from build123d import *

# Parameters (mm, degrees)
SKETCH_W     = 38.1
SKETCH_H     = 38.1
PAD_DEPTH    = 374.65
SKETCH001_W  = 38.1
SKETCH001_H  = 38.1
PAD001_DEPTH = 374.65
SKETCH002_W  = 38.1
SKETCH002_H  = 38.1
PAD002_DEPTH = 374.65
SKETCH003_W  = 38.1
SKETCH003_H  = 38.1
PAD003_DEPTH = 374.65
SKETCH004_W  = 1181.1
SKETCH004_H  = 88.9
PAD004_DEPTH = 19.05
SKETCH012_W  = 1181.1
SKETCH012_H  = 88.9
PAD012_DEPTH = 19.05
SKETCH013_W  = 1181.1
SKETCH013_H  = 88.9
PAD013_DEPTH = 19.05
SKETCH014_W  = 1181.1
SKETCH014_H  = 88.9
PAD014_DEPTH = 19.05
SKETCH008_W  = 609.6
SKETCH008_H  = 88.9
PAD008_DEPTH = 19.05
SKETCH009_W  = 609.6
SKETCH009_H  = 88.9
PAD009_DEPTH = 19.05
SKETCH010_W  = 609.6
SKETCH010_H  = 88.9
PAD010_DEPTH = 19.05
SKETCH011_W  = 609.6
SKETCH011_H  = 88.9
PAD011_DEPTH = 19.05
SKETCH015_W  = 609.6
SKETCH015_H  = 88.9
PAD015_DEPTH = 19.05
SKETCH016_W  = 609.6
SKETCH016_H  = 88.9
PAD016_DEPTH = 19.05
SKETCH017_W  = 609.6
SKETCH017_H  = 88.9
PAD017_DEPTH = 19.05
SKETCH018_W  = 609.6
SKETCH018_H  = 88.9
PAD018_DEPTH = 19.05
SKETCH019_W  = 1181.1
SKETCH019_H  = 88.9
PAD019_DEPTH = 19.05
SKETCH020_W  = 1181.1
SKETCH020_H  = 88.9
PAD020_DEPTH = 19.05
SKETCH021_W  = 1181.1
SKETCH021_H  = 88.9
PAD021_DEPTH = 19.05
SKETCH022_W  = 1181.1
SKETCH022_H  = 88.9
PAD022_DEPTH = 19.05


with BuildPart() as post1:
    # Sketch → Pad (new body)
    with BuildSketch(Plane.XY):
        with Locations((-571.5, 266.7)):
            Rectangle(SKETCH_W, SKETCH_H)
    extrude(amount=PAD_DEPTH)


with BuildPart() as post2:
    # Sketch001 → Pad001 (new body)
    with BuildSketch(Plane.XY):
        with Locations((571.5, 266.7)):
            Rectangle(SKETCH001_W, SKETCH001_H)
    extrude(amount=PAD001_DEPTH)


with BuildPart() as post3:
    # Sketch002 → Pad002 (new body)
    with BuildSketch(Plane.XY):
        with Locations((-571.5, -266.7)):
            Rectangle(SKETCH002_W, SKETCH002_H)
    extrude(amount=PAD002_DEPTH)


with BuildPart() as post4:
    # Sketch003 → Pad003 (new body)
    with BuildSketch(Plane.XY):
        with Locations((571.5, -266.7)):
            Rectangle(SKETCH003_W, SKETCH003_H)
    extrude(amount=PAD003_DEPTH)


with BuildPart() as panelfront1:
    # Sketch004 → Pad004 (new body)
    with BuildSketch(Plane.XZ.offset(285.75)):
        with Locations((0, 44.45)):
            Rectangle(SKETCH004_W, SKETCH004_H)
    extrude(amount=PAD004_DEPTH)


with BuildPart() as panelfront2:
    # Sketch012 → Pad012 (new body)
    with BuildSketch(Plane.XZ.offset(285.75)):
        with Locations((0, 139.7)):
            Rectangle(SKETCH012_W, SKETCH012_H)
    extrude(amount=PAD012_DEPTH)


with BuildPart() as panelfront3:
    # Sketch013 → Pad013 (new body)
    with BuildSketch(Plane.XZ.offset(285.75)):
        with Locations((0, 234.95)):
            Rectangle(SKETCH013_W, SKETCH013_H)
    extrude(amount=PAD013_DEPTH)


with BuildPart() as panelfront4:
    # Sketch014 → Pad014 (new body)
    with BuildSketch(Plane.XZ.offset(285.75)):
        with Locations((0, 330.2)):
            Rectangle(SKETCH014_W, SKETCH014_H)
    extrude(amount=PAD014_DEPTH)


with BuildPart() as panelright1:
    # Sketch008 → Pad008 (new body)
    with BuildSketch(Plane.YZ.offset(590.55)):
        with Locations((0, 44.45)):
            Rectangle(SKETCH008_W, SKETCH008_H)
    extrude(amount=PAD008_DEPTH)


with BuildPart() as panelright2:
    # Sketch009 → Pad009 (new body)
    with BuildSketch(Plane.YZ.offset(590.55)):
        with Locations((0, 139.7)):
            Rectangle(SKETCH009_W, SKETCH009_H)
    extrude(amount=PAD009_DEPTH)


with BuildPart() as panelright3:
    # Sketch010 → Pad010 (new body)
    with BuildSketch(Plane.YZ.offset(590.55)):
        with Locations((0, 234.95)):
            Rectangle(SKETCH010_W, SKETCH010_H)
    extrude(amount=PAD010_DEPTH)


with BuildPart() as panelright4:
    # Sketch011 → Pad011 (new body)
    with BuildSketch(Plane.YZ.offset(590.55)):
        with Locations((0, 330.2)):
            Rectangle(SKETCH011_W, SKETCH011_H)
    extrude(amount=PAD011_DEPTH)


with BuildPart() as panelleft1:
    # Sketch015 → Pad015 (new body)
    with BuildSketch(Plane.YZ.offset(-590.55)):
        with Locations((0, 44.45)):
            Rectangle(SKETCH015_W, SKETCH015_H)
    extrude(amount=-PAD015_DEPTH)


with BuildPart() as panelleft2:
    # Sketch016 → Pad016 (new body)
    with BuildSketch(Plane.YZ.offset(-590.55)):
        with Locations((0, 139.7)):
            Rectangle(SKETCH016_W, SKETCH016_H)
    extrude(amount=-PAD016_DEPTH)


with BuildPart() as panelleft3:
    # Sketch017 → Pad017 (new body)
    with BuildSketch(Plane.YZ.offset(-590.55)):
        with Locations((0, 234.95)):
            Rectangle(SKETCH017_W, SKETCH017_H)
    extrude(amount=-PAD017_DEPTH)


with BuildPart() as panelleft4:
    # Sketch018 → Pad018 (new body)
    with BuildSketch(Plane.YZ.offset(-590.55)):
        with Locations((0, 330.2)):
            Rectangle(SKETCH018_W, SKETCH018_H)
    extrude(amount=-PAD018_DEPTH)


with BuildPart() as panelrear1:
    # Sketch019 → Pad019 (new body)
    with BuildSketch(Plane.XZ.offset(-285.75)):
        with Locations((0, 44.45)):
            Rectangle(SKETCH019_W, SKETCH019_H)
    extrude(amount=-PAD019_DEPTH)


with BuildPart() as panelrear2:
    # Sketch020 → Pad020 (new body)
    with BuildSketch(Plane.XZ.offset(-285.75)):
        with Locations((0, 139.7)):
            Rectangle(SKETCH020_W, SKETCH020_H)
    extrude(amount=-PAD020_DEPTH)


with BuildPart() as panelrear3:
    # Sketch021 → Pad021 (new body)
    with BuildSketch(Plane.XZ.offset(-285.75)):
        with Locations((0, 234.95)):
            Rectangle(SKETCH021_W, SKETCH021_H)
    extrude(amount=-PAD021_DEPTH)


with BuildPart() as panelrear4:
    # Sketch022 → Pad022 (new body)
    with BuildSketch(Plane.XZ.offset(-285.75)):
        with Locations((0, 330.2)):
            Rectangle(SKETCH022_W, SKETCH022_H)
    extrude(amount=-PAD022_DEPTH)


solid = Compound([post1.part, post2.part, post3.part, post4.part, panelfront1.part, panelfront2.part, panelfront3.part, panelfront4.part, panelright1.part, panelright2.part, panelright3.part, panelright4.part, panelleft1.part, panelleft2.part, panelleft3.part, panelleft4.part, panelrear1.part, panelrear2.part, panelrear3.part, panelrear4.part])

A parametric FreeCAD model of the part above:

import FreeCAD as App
import Part
import Sketcher
Q = App.Units.Quantity

doc = App.newDocument("Part")
body = doc.addObject("PartDesign::Body", "Body")

sketch1 = body.newObject("Sketcher::SketchObject", "Sketch")
sketch1.AttachmentSupport = (doc.getObject("XY_Plane"), [""])
sketch1.MapMode = "FlatFace"
sketch1.addGeometry([
    Part.LineSegment(App.Vector(-591, 286, 0), App.Vector(-591, 248, 0)),
    Part.LineSegment(App.Vector(-591, 248, 0), App.Vector(-552, 248, 0)),
    Part.LineSegment(App.Vector(-552, 248, 0), App.Vector(-552, 286, 0)),
    Part.LineSegment(App.Vector(-552, 286, 0), App.Vector(-591, 286, 0)),
], False)
sketch1.addConstraint([
    Sketcher.Constraint("Coincident", 0, 2, 1, 1),
    Sketcher.Constraint("Coincident", 1, 2, 2, 1),
    Sketcher.Constraint("Coincident", 2, 2, 3, 1),
    Sketcher.Constraint("Coincident", 3, 2, 0, 1),
    Sketcher.Constraint("Vertical", 0),
    Sketcher.Constraint("Horizontal", 1),
    Sketcher.Constraint("Vertical", 2),
    Sketcher.Constraint("Horizontal", 3),
    Sketcher.Constraint("Equal", 3, 0),
    Sketcher.Constraint("DistanceX", 1, 1, 1, 2, Q("1.5 in")),
    Sketcher.Constraint("DistanceX", 0, 2, -1, 1, Q("23.25 in")),
    Sketcher.Constraint("DistanceY", -1, 1, 0, 2, Q("9.75 in")),
])
pad1 = body.newObject("PartDesign::Pad", "Pad")
pad1.Profile = sketch1
pad1.Length = Q("14.75 in")
body2 = doc.addObject("PartDesign::Body", "Body001")

sketch2 = body2.newObject("Sketcher::SketchObject", "Sketch001")
sketch2.AttachmentSupport = (doc.getObject("XY_Plane001"), [""])
sketch2.MapMode = "FlatFace"
sketch2.addGeometry([
    Part.LineSegment(App.Vector(552, 286, 0), App.Vector(552, 248, 0)),
    Part.LineSegment(App.Vector(552, 248, 0), App.Vector(591, 248, 0)),
    Part.LineSegment(App.Vector(591, 248, 0), App.Vector(591, 286, 0)),
    Part.LineSegment(App.Vector(591, 286, 0), App.Vector(552, 286, 0)),
], False)
sketch2.addConstraint([
    Sketcher.Constraint("Coincident", 0, 2, 1, 1),
    Sketcher.Constraint("Coincident", 1, 2, 2, 1),
    Sketcher.Constraint("Coincident", 2, 2, 3, 1),
    Sketcher.Constraint("Coincident", 3, 2, 0, 1),
    Sketcher.Constraint("Vertical", 0),
    Sketcher.Constraint("Horizontal", 1),
    Sketcher.Constraint("Vertical", 2),
    Sketcher.Constraint("Horizontal", 3),
    Sketcher.Constraint("Equal", 3, 0),
    Sketcher.Constraint("DistanceX", 1, 1, 1, 2, Q("1.5 in")),
    Sketcher.Constraint("DistanceX", -1, 1, 0, 2, Q("21.75 in")),
    Sketcher.Constraint("DistanceY", -1, 1, 0, 2, Q("9.75 in")),
])
pad2 = body2.newObject("PartDesign::Pad", "Pad001")
pad2.Profile = sketch2
pad2.Length = Q("14.75 in")
body3 = doc.addObject("PartDesign::Body", "Body002")

sketch3 = body3.newObject("Sketcher::SketchObject", "Sketch002")
sketch3.AttachmentSupport = (doc.getObject("XY_Plane002"), [""])
sketch3.MapMode = "FlatFace"
sketch3.addGeometry([
    Part.LineSegment(App.Vector(-591, -248, 0), App.Vector(-591, -286, 0)),
    Part.LineSegment(App.Vector(-591, -286, 0), App.Vector(-552, -286, 0)),
    Part.LineSegment(App.Vector(-552, -286, 0), App.Vector(-552, -248, 0)),
    Part.LineSegment(App.Vector(-552, -248, 0), App.Vector(-591, -248, 0)),
], False)
sketch3.addConstraint([
    Sketcher.Constraint("Coincident", 0, 2, 1, 1),
    Sketcher.Constraint("Coincident", 1, 2, 2, 1),
    Sketcher.Constraint("Coincident", 2, 2, 3, 1),
    Sketcher.Constraint("Coincident", 3, 2, 0, 1),
    Sketcher.Constraint("Vertical", 0),
    Sketcher.Constraint("Horizontal", 1),
    Sketcher.Constraint("Vertical", 2),
    Sketcher.Constraint("Horizontal", 3),
    Sketcher.Constraint("Equal", 3, 0),
    Sketcher.Constraint("DistanceX", 1, 1, 1, 2, Q("1.5 in")),
    Sketcher.Constraint("DistanceX", 0, 2, -1, 1, Q("23.25 in")),
    Sketcher.Constraint("DistanceY", 0, 2, -1, 1, Q("11.25 in")),
])
pad3 = body3.newObject("PartDesign::Pad", "Pad002")
pad3.Profile = sketch3
pad3.Length = Q("14.75 in")
body4 = doc.addObject("PartDesign::Body", "Body003")

sketch4 = body4.newObject("Sketcher::SketchObject", "Sketch003")
sketch4.AttachmentSupport = (doc.getObject("XY_Plane003"), [""])
sketch4.MapMode = "FlatFace"
sketch4.addGeometry([
    Part.LineSegment(App.Vector(552, -248, 0), App.Vector(552, -286, 0)),
    Part.LineSegment(App.Vector(552, -286, 0), App.Vector(591, -286, 0)),
    Part.LineSegment(App.Vector(591, -286, 0), App.Vector(591, -248, 0)),
    Part.LineSegment(App.Vector(591, -248, 0), App.Vector(552, -248, 0)),
], False)
sketch4.addConstraint([
    Sketcher.Constraint("Coincident", 0, 2, 1, 1),
    Sketcher.Constraint("Coincident", 1, 2, 2, 1),
    Sketcher.Constraint("Coincident", 2, 2, 3, 1),
    Sketcher.Constraint("Coincident", 3, 2, 0, 1),
    Sketcher.Constraint("Vertical", 0),
    Sketcher.Constraint("Horizontal", 1),
    Sketcher.Constraint("Vertical", 2),
    Sketcher.Constraint("Horizontal", 3),
    Sketcher.Constraint("Equal", 3, 0),
    Sketcher.Constraint("DistanceX", 1, 1, 1, 2, Q("1.5 in")),
    Sketcher.Constraint("DistanceX", -1, 1, 0, 2, Q("21.75 in")),
    Sketcher.Constraint("DistanceY", 0, 2, -1, 1, Q("11.25 in")),
])
pad4 = body4.newObject("PartDesign::Pad", "Pad003")
pad4.Profile = sketch4
pad4.Length = Q("14.75 in")
body5 = doc.addObject("PartDesign::Body", "Body004")

sketch5 = body5.newObject("Sketcher::SketchObject", "Sketch004")
sketch5.AttachmentSupport = (doc.getObject("XZ_Plane004"), [""])
sketch5.MapMode = "FlatFace"
sketch5.AttachmentOffset = App.Placement(App.Vector(0, 0, 11.25 * 25.4), App.Rotation())
sketch5.addGeometry([
    Part.LineSegment(App.Vector(-591, 89, 0), App.Vector(-591, 0, 0)),
    Part.LineSegment(App.Vector(-591, 0, 0), App.Vector(591, 0, 0)),
    Part.LineSegment(App.Vector(591, 0, 0), App.Vector(591, 89, 0)),
    Part.LineSegment(App.Vector(591, 89, 0), App.Vector(-591, 89, 0)),
], False)
sketch5.addConstraint([
    Sketcher.Constraint("Coincident", 0, 2, 1, 1),
    Sketcher.Constraint("Coincident", 1, 2, 2, 1),
    Sketcher.Constraint("Coincident", 2, 2, 3, 1),
    Sketcher.Constraint("Coincident", 3, 2, 0, 1),
    Sketcher.Constraint("Vertical", 0),
    Sketcher.Constraint("Horizontal", 1),
    Sketcher.Constraint("Vertical", 2),
    Sketcher.Constraint("Horizontal", 3),
    Sketcher.Constraint("Symmetric", 0, 2, 1, 2, -1, 1),
    Sketcher.Constraint("DistanceX", 1, 1, 1, 2, Q("46.5 in")),
    Sketcher.Constraint("DistanceY", 0, 2, 0, 1, Q("3.5 in")),
])
pad5 = body5.newObject("PartDesign::Pad", "Pad004")
pad5.Profile = sketch5
pad5.Length = Q("0.75 in")
body6 = doc.addObject("PartDesign::Body", "Body005")

sketch6 = body6.newObject("Sketcher::SketchObject", "Sketch005")
sketch6.AttachmentSupport = (doc.getObject("XZ_Plane005"), [""])
sketch6.MapMode = "FlatFace"
sketch6.AttachmentOffset = App.Placement(App.Vector(0, 0, 11.25 * 25.4), App.Rotation())
sketch6.addGeometry([
    Part.LineSegment(App.Vector(-591, 184, 0), App.Vector(-591, 95, 0)),
    Part.LineSegment(App.Vector(-591, 95, 0), App.Vector(591, 95, 0)),
    Part.LineSegment(App.Vector(591, 95, 0), App.Vector(591, 184, 0)),
    Part.LineSegment(App.Vector(591, 184, 0), App.Vector(-591, 184, 0)),
], False)
sketch6.addConstraint([
    Sketcher.Constraint("Coincident", 0, 2, 1, 1),
    Sketcher.Constraint("Coincident", 1, 2, 2, 1),
    Sketcher.Constraint("Coincident", 2, 2, 3, 1),
    Sketcher.Constraint("Coincident", 3, 2, 0, 1),
    Sketcher.Constraint("Vertical", 0),
    Sketcher.Constraint("Horizontal", 1),
    Sketcher.Constraint("Vertical", 2),
    Sketcher.Constraint("Horizontal", 3),
    Sketcher.Constraint("DistanceX", 1, 1, 1, 2, Q("46.5 in")),
    Sketcher.Constraint("DistanceY", 0, 2, 0, 1, Q("3.5 in")),
    Sketcher.Constraint("DistanceX", 0, 2, -1, 1, Q("23.25 in")),
    Sketcher.Constraint("DistanceY", -1, 1, 0, 2, Q("3.75 in")),
])
pad6 = body6.newObject("PartDesign::Pad", "Pad005")
pad6.Profile = sketch6
pad6.Length = Q("0.75 in")
body7 = doc.addObject("PartDesign::Body", "Body006")

sketch7 = body7.newObject("Sketcher::SketchObject", "Sketch006")
sketch7.AttachmentSupport = (doc.getObject("XZ_Plane006"), [""])
sketch7.MapMode = "FlatFace"
sketch7.AttachmentOffset = App.Placement(App.Vector(0, 0, 11.25 * 25.4), App.Rotation())
sketch7.addGeometry([
    Part.LineSegment(App.Vector(-591, 279, 0), App.Vector(-591, 190, 0)),
    Part.LineSegment(App.Vector(-591, 190, 0), App.Vector(591, 190, 0)),
    Part.LineSegment(App.Vector(591, 190, 0), App.Vector(591, 279, 0)),
    Part.LineSegment(App.Vector(591, 279, 0), App.Vector(-591, 279, 0)),
], False)
sketch7.addConstraint([
    Sketcher.Constraint("Coincident", 0, 2, 1, 1),
    Sketcher.Constraint("Coincident", 1, 2, 2, 1),
    Sketcher.Constraint("Coincident", 2, 2, 3, 1),
    Sketcher.Constraint("Coincident", 3, 2, 0, 1),
    Sketcher.Constraint("Vertical", 0),
    Sketcher.Constraint("Horizontal", 1),
    Sketcher.Constraint("Vertical", 2),
    Sketcher.Constraint("Horizontal", 3),
    Sketcher.Constraint("DistanceX", 1, 1, 1, 2, Q("46.5 in")),
    Sketcher.Constraint("DistanceY", 0, 2, 0, 1, Q("3.5 in")),
    Sketcher.Constraint("DistanceY", -1, 1, 2, 2, Q("11 in")),
    Sketcher.Constraint("DistanceX", 0, 2, -1, 1, Q("23.25 in")),
])
pad7 = body7.newObject("PartDesign::Pad", "Pad006")
pad7.Profile = sketch7
pad7.Length = Q("0.75 in")
body8 = doc.addObject("PartDesign::Body", "Body007")

sketch8 = body8.newObject("Sketcher::SketchObject", "Sketch007")
sketch8.AttachmentSupport = (doc.getObject("XZ_Plane007"), [""])
sketch8.MapMode = "FlatFace"
sketch8.AttachmentOffset = App.Placement(App.Vector(0, 0, 11.25 * 25.4), App.Rotation())
sketch8.addGeometry([
    Part.LineSegment(App.Vector(-591, 375, 0), App.Vector(-591, 286, 0)),
    Part.LineSegment(App.Vector(-591, 286, 0), App.Vector(591, 286, 0)),
    Part.LineSegment(App.Vector(591, 286, 0), App.Vector(591, 375, 0)),
    Part.LineSegment(App.Vector(591, 375, 0), App.Vector(-591, 375, 0)),
], False)
sketch8.addConstraint([
    Sketcher.Constraint("Coincident", 0, 2, 1, 1),
    Sketcher.Constraint("Coincident", 1, 2, 2, 1),
    Sketcher.Constraint("Coincident", 2, 2, 3, 1),
    Sketcher.Constraint("Coincident", 3, 2, 0, 1),
    Sketcher.Constraint("Vertical", 0),
    Sketcher.Constraint("Horizontal", 1),
    Sketcher.Constraint("Vertical", 2),
    Sketcher.Constraint("Horizontal", 3),
    Sketcher.Constraint("DistanceX", 1, 1, 1, 2, Q("46.5 in")),
    Sketcher.Constraint("DistanceY", 0, 2, 0, 1, Q("3.5 in")),
    Sketcher.Constraint("DistanceX", 0, 2, -1, 1, Q("23.25 in")),
    Sketcher.Constraint("DistanceY", -1, 1, 0, 2, Q("11.25 in")),
])
pad8 = body8.newObject("PartDesign::Pad", "Pad007")
pad8.Profile = sketch8
pad8.Length = Q("0.75 in")
body9 = doc.addObject("PartDesign::Body", "Body008")

sketch9 = body9.newObject("Sketcher::SketchObject", "Sketch008")
sketch9.AttachmentSupport = (doc.getObject("YZ_Plane008"), [""])
sketch9.MapMode = "FlatFace"
sketch9.AttachmentOffset = App.Placement(App.Vector(0, 0, 23.25 * 25.4), App.Rotation())
sketch9.addGeometry([
    Part.LineSegment(App.Vector(-305, 89, 0), App.Vector(-305, 0, 0)),
    Part.LineSegment(App.Vector(-305, 0, 0), App.Vector(305, 0, 0)),
    Part.LineSegment(App.Vector(305, 0, 0), App.Vector(305, 89, 0)),
    Part.LineSegment(App.Vector(305, 89, 0), App.Vector(-305, 89, 0)),
], False)
sketch9.addConstraint([
    Sketcher.Constraint("Coincident", 0, 2, 1, 1),
    Sketcher.Constraint("Coincident", 1, 2, 2, 1),
    Sketcher.Constraint("Coincident", 2, 2, 3, 1),
    Sketcher.Constraint("Coincident", 3, 2, 0, 1),
    Sketcher.Constraint("Vertical", 0),
    Sketcher.Constraint("Horizontal", 1),
    Sketcher.Constraint("Vertical", 2),
    Sketcher.Constraint("Horizontal", 3),
    Sketcher.Constraint("Symmetric", 0, 2, 1, 2, -1, 1),
    Sketcher.Constraint("DistanceX", 1, 1, 1, 2, Q("24 in")),
    Sketcher.Constraint("DistanceY", 0, 2, 0, 1, Q("3.5 in")),
])
pad9 = body9.newObject("PartDesign::Pad", "Pad008")
pad9.Profile = sketch9
pad9.Length = Q("0.75 in")
body10 = doc.addObject("PartDesign::Body", "Body009")

sketch10 = body10.newObject("Sketcher::SketchObject", "Sketch009")
sketch10.AttachmentSupport = (doc.getObject("YZ_Plane009"), [""])
sketch10.MapMode = "FlatFace"
sketch10.AttachmentOffset = App.Placement(App.Vector(0, 0, 23.25 * 25.4), App.Rotation())
sketch10.addGeometry([
    Part.LineSegment(App.Vector(-305, 184, 0), App.Vector(-305, 95, 0)),
    Part.LineSegment(App.Vector(-305, 95, 0), App.Vector(305, 95, 0)),
    Part.LineSegment(App.Vector(305, 95, 0), App.Vector(305, 184, 0)),
    Part.LineSegment(App.Vector(305, 184, 0), App.Vector(-305, 184, 0)),
], False)
sketch10.addConstraint([
    Sketcher.Constraint("Coincident", 0, 2, 1, 1),
    Sketcher.Constraint("Coincident", 1, 2, 2, 1),
    Sketcher.Constraint("Coincident", 2, 2, 3, 1),
    Sketcher.Constraint("Coincident", 3, 2, 0, 1),
    Sketcher.Constraint("Vertical", 0),
    Sketcher.Constraint("Horizontal", 1),
    Sketcher.Constraint("Vertical", 2),
    Sketcher.Constraint("Horizontal", 3),
    Sketcher.Constraint("DistanceX", 1, 1, 1, 2, Q("24 in")),
    Sketcher.Constraint("DistanceY", 0, 2, 0, 1, Q("3.5 in")),
    Sketcher.Constraint("DistanceX", 0, 2, -1, 1, Q("12 in")),
    Sketcher.Constraint("DistanceY", -1, 1, 0, 2, Q("3.75 in")),
])
pad10 = body10.newObject("PartDesign::Pad", "Pad009")
pad10.Profile = sketch10
pad10.Length = Q("0.75 in")
body11 = doc.addObject("PartDesign::Body", "Body010")

sketch11 = body11.newObject("Sketcher::SketchObject", "Sketch010")
sketch11.AttachmentSupport = (doc.getObject("YZ_Plane010"), [""])
sketch11.MapMode = "FlatFace"
sketch11.AttachmentOffset = App.Placement(App.Vector(0, 0, 23.25 * 25.4), App.Rotation())
sketch11.addGeometry([
    Part.LineSegment(App.Vector(-305, 279, 0), App.Vector(-305, 190, 0)),
    Part.LineSegment(App.Vector(-305, 190, 0), App.Vector(305, 190, 0)),
    Part.LineSegment(App.Vector(305, 190, 0), App.Vector(305, 279, 0)),
    Part.LineSegment(App.Vector(305, 279, 0), App.Vector(-305, 279, 0)),
], False)
sketch11.addConstraint([
    Sketcher.Constraint("Coincident", 0, 2, 1, 1),
    Sketcher.Constraint("Coincident", 1, 2, 2, 1),
    Sketcher.Constraint("Coincident", 2, 2, 3, 1),
    Sketcher.Constraint("Coincident", 3, 2, 0, 1),
    Sketcher.Constraint("Vertical", 0),
    Sketcher.Constraint("Horizontal", 1),
    Sketcher.Constraint("Vertical", 2),
    Sketcher.Constraint("Horizontal", 3),
    Sketcher.Constraint("DistanceX", 1, 1, 1, 2, Q("24 in")),
    Sketcher.Constraint("DistanceY", 0, 2, 0, 1, Q("3.5 in")),
    Sketcher.Constraint("DistanceX", 0, 2, -1, 1, Q("12 in")),
    Sketcher.Constraint("DistanceY", -1, 1, 2, 2, Q("11 in")),
])
pad11 = body11.newObject("PartDesign::Pad", "Pad010")
pad11.Profile = sketch11
pad11.Length = Q("0.75 in")
body12 = doc.addObject("PartDesign::Body", "Body011")

sketch12 = body12.newObject("Sketcher::SketchObject", "Sketch011")
sketch12.AttachmentSupport = (doc.getObject("YZ_Plane011"), [""])
sketch12.MapMode = "FlatFace"
sketch12.AttachmentOffset = App.Placement(App.Vector(0, 0, 23.25 * 25.4), App.Rotation())
sketch12.addGeometry([
    Part.LineSegment(App.Vector(-305, 375, 0), App.Vector(-305, 286, 0)),
    Part.LineSegment(App.Vector(-305, 286, 0), App.Vector(305, 286, 0)),
    Part.LineSegment(App.Vector(305, 286, 0), App.Vector(305, 375, 0)),
    Part.LineSegment(App.Vector(305, 375, 0), App.Vector(-305, 375, 0)),
], False)
sketch12.addConstraint([
    Sketcher.Constraint("Coincident", 0, 2, 1, 1),
    Sketcher.Constraint("Coincident", 1, 2, 2, 1),
    Sketcher.Constraint("Coincident", 2, 2, 3, 1),
    Sketcher.Constraint("Coincident", 3, 2, 0, 1),
    Sketcher.Constraint("Vertical", 0),
    Sketcher.Constraint("Horizontal", 1),
    Sketcher.Constraint("Vertical", 2),
    Sketcher.Constraint("Horizontal", 3),
    Sketcher.Constraint("DistanceX", 1, 1, 1, 2, Q("24 in")),
    Sketcher.Constraint("DistanceY", 0, 2, 0, 1, Q("3.5 in")),
    Sketcher.Constraint("DistanceX", 0, 2, -1, 1, Q("12 in")),
    Sketcher.Constraint("DistanceY", -1, 1, 0, 2, Q("11.25 in")),
])
pad12 = body12.newObject("PartDesign::Pad", "Pad011")
pad12.Profile = sketch12
pad12.Length = Q("0.75 in")
body13 = doc.addObject("PartDesign::Body", "Body012")

sketch13 = body13.newObject("Sketcher::SketchObject", "Sketch012")
sketch13.AttachmentSupport = (doc.getObject("YZ_Plane012"), [""])
sketch13.MapMode = "FlatFace"
sketch13.AttachmentOffset = App.Placement(App.Vector(0, 0, -23.25 * 25.4), App.Rotation())
sketch13.addGeometry([
    Part.LineSegment(App.Vector(-305, 89, 0), App.Vector(-305, 0, 0)),
    Part.LineSegment(App.Vector(-305, 0, 0), App.Vector(305, 0, 0)),
    Part.LineSegment(App.Vector(305, 0, 0), App.Vector(305, 89, 0)),
    Part.LineSegment(App.Vector(305, 89, 0), App.Vector(-305, 89, 0)),
], False)
sketch13.addConstraint([
    Sketcher.Constraint("Coincident", 0, 2, 1, 1),
    Sketcher.Constraint("Coincident", 1, 2, 2, 1),
    Sketcher.Constraint("Coincident", 2, 2, 3, 1),
    Sketcher.Constraint("Coincident", 3, 2, 0, 1),
    Sketcher.Constraint("Vertical", 0),
    Sketcher.Constraint("Horizontal", 1),
    Sketcher.Constraint("Vertical", 2),
    Sketcher.Constraint("Horizontal", 3),
    Sketcher.Constraint("Symmetric", 0, 2, 1, 2, -1, 1),
    Sketcher.Constraint("DistanceX", 1, 1, 1, 2, Q("24 in")),
    Sketcher.Constraint("DistanceY", 0, 2, 0, 1, Q("3.5 in")),
])
pad13 = body13.newObject("PartDesign::Pad", "Pad012")
pad13.Profile = sketch13
pad13.Length = Q("0.75 in")
pad13.Reversed = True
body14 = doc.addObject("PartDesign::Body", "Body013")

sketch14 = body14.newObject("Sketcher::SketchObject", "Sketch013")
sketch14.AttachmentSupport = (doc.getObject("YZ_Plane013"), [""])
sketch14.MapMode = "FlatFace"
sketch14.AttachmentOffset = App.Placement(App.Vector(0, 0, -23.25 * 25.4), App.Rotation())
sketch14.addGeometry([
    Part.LineSegment(App.Vector(-305, 184, 0), App.Vector(-305, 95, 0)),
    Part.LineSegment(App.Vector(-305, 95, 0), App.Vector(305, 95, 0)),
    Part.LineSegment(App.Vector(305, 95, 0), App.Vector(305, 184, 0)),
    Part.LineSegment(App.Vector(305, 184, 0), App.Vector(-305, 184, 0)),
], False)
sketch14.addConstraint([
    Sketcher.Constraint("Coincident", 0, 2, 1, 1),
    Sketcher.Constraint("Coincident", 1, 2, 2, 1),
    Sketcher.Constraint("Coincident", 2, 2, 3, 1),
    Sketcher.Constraint("Coincident", 3, 2, 0, 1),
    Sketcher.Constraint("Vertical", 0),
    Sketcher.Constraint("Horizontal", 1),
    Sketcher.Constraint("Vertical", 2),
    Sketcher.Constraint("Horizontal", 3),
    Sketcher.Constraint("DistanceX", 1, 1, 1, 2, Q("24 in")),
    Sketcher.Constraint("DistanceY", 0, 2, 0, 1, Q("3.5 in")),
    Sketcher.Constraint("DistanceX", 0, 2, -1, 1, Q("12 in")),
    Sketcher.Constraint("DistanceY", -1, 1, 0, 2, Q("3.75 in")),
])
pad14 = body14.newObject("PartDesign::Pad", "Pad013")
pad14.Profile = sketch14
pad14.Length = Q("0.75 in")
pad14.Reversed = True
body15 = doc.addObject("PartDesign::Body", "Body014")

sketch15 = body15.newObject("Sketcher::SketchObject", "Sketch014")
sketch15.AttachmentSupport = (doc.getObject("YZ_Plane014"), [""])
sketch15.MapMode = "FlatFace"
sketch15.AttachmentOffset = App.Placement(App.Vector(0, 0, -23.25 * 25.4), App.Rotation())
sketch15.addGeometry([
    Part.LineSegment(App.Vector(-305, 279, 0), App.Vector(-305, 190, 0)),
    Part.LineSegment(App.Vector(-305, 190, 0), App.Vector(305, 190, 0)),
    Part.LineSegment(App.Vector(305, 190, 0), App.Vector(305, 279, 0)),
    Part.LineSegment(App.Vector(305, 279, 0), App.Vector(-305, 279, 0)),
], False)
sketch15.addConstraint([
    Sketcher.Constraint("Coincident", 0, 2, 1, 1),
    Sketcher.Constraint("Coincident", 1, 2, 2, 1),
    Sketcher.Constraint("Coincident", 2, 2, 3, 1),
    Sketcher.Constraint("Coincident", 3, 2, 0, 1),
    Sketcher.Constraint("Vertical", 0),
    Sketcher.Constraint("Horizontal", 1),
    Sketcher.Constraint("Vertical", 2),
    Sketcher.Constraint("Horizontal", 3),
    Sketcher.Constraint("DistanceX", 1, 1, 1, 2, Q("24 in")),
    Sketcher.Constraint("DistanceY", 0, 2, 0, 1, Q("3.5 in")),
    Sketcher.Constraint("DistanceX", 0, 2, -1, 1, Q("12 in")),
    Sketcher.Constraint("DistanceY", -1, 1, 2, 2, Q("11 in")),
])
pad15 = body15.newObject("PartDesign::Pad", "Pad014")
pad15.Profile = sketch15
pad15.Length = Q("0.75 in")
pad15.Reversed = True
body16 = doc.addObject("PartDesign::Body", "Body015")

sketch16 = body16.newObject("Sketcher::SketchObject", "Sketch015")
sketch16.AttachmentSupport = (doc.getObject("YZ_Plane015"), [""])
sketch16.MapMode = "FlatFace"
sketch16.AttachmentOffset = App.Placement(App.Vector(0, 0, -23.25 * 25.4), App.Rotation())
sketch16.addGeometry([
    Part.LineSegment(App.Vector(-305, 375, 0), App.Vector(-305, 286, 0)),
    Part.LineSegment(App.Vector(-305, 286, 0), App.Vector(305, 286, 0)),
    Part.LineSegment(App.Vector(305, 286, 0), App.Vector(305, 375, 0)),
    Part.LineSegment(App.Vector(305, 375, 0), App.Vector(-305, 375, 0)),
], False)
sketch16.addConstraint([
    Sketcher.Constraint("Coincident", 0, 2, 1, 1),
    Sketcher.Constraint("Coincident", 1, 2, 2, 1),
    Sketcher.Constraint("Coincident", 2, 2, 3, 1),
    Sketcher.Constraint("Coincident", 3, 2, 0, 1),
    Sketcher.Constraint("Vertical", 0),
    Sketcher.Constraint("Horizontal", 1),
    Sketcher.Constraint("Vertical", 2),
    Sketcher.Constraint("Horizontal", 3),
    Sketcher.Constraint("DistanceX", 1, 1, 1, 2, Q("24 in")),
    Sketcher.Constraint("DistanceY", 0, 2, 0, 1, Q("3.5 in")),
    Sketcher.Constraint("DistanceX", 0, 2, -1, 1, Q("12 in")),
    Sketcher.Constraint("DistanceY", -1, 1, 0, 2, Q("11.25 in")),
])
pad16 = body16.newObject("PartDesign::Pad", "Pad015")
pad16.Profile = sketch16
pad16.Length = Q("0.75 in")
pad16.Reversed = True
body17 = doc.addObject("PartDesign::Body", "Body016")

sketch17 = body17.newObject("Sketcher::SketchObject", "Sketch016")
sketch17.AttachmentSupport = (doc.getObject("XZ_Plane016"), [""])
sketch17.MapMode = "FlatFace"
sketch17.AttachmentOffset = App.Placement(App.Vector(0, 0, -11.25 * 25.4), App.Rotation())
sketch17.addGeometry([
    Part.LineSegment(App.Vector(-591, 89, 0), App.Vector(-591, 0, 0)),
    Part.LineSegment(App.Vector(-591, 0, 0), App.Vector(591, 0, 0)),
    Part.LineSegment(App.Vector(591, 0, 0), App.Vector(591, 89, 0)),
    Part.LineSegment(App.Vector(591, 89, 0), App.Vector(-591, 89, 0)),
], False)
sketch17.addConstraint([
    Sketcher.Constraint("Coincident", 0, 2, 1, 1),
    Sketcher.Constraint("Coincident", 1, 2, 2, 1),
    Sketcher.Constraint("Coincident", 2, 2, 3, 1),
    Sketcher.Constraint("Coincident", 3, 2, 0, 1),
    Sketcher.Constraint("Vertical", 0),
    Sketcher.Constraint("Horizontal", 1),
    Sketcher.Constraint("Vertical", 2),
    Sketcher.Constraint("Horizontal", 3),
    Sketcher.Constraint("Symmetric", 0, 2, 1, 2, -1, 1),
    Sketcher.Constraint("DistanceX", 1, 1, 1, 2, Q("46.5 in")),
    Sketcher.Constraint("DistanceY", 0, 2, 0, 1, Q("3.5 in")),
])
pad17 = body17.newObject("PartDesign::Pad", "Pad016")
pad17.Profile = sketch17
pad17.Length = Q("0.75 in")
pad17.Reversed = True
body18 = doc.addObject("PartDesign::Body", "Body017")

sketch18 = body18.newObject("Sketcher::SketchObject", "Sketch017")
sketch18.AttachmentSupport = (doc.getObject("XZ_Plane017"), [""])
sketch18.MapMode = "FlatFace"
sketch18.AttachmentOffset = App.Placement(App.Vector(0, 0, -11.25 * 25.4), App.Rotation())
sketch18.addGeometry([
    Part.LineSegment(App.Vector(-591, 184, 0), App.Vector(-591, 95, 0)),
    Part.LineSegment(App.Vector(-591, 95, 0), App.Vector(591, 95, 0)),
    Part.LineSegment(App.Vector(591, 95, 0), App.Vector(591, 184, 0)),
    Part.LineSegment(App.Vector(591, 184, 0), App.Vector(-591, 184, 0)),
], False)
sketch18.addConstraint([
    Sketcher.Constraint("Coincident", 0, 2, 1, 1),
    Sketcher.Constraint("Coincident", 1, 2, 2, 1),
    Sketcher.Constraint("Coincident", 2, 2, 3, 1),
    Sketcher.Constraint("Coincident", 3, 2, 0, 1),
    Sketcher.Constraint("Vertical", 0),
    Sketcher.Constraint("Horizontal", 1),
    Sketcher.Constraint("Vertical", 2),
    Sketcher.Constraint("Horizontal", 3),
    Sketcher.Constraint("DistanceX", 1, 1, 1, 2, Q("46.5 in")),
    Sketcher.Constraint("DistanceY", 0, 2, 0, 1, Q("3.5 in")),
    Sketcher.Constraint("DistanceX", 0, 2, -1, 1, Q("23.25 in")),
    Sketcher.Constraint("DistanceY", -1, 1, 0, 2, Q("3.75 in")),
])
pad18 = body18.newObject("PartDesign::Pad", "Pad017")
pad18.Profile = sketch18
pad18.Length = Q("0.75 in")
pad18.Reversed = True
body19 = doc.addObject("PartDesign::Body", "Body018")

sketch19 = body19.newObject("Sketcher::SketchObject", "Sketch018")
sketch19.AttachmentSupport = (doc.getObject("XZ_Plane018"), [""])
sketch19.MapMode = "FlatFace"
sketch19.AttachmentOffset = App.Placement(App.Vector(0, 0, -11.25 * 25.4), App.Rotation())
sketch19.addGeometry([
    Part.LineSegment(App.Vector(-591, 279, 0), App.Vector(-591, 190, 0)),
    Part.LineSegment(App.Vector(-591, 190, 0), App.Vector(591, 190, 0)),
    Part.LineSegment(App.Vector(591, 190, 0), App.Vector(591, 279, 0)),
    Part.LineSegment(App.Vector(591, 279, 0), App.Vector(-591, 279, 0)),
], False)
sketch19.addConstraint([
    Sketcher.Constraint("Coincident", 0, 2, 1, 1),
    Sketcher.Constraint("Coincident", 1, 2, 2, 1),
    Sketcher.Constraint("Coincident", 2, 2, 3, 1),
    Sketcher.Constraint("Coincident", 3, 2, 0, 1),
    Sketcher.Constraint("Vertical", 0),
    Sketcher.Constraint("Horizontal", 1),
    Sketcher.Constraint("Vertical", 2),
    Sketcher.Constraint("Horizontal", 3),
    Sketcher.Constraint("DistanceX", 1, 1, 1, 2, Q("46.5 in")),
    Sketcher.Constraint("DistanceY", 0, 2, 0, 1, Q("3.5 in")),
    Sketcher.Constraint("DistanceY", -1, 1, 2, 2, Q("11 in")),
    Sketcher.Constraint("DistanceX", 0, 2, -1, 1, Q("23.25 in")),
])
pad19 = body19.newObject("PartDesign::Pad", "Pad018")
pad19.Profile = sketch19
pad19.Length = Q("0.75 in")
pad19.Reversed = True
body20 = doc.addObject("PartDesign::Body", "Body019")

sketch20 = body20.newObject("Sketcher::SketchObject", "Sketch019")
sketch20.AttachmentSupport = (doc.getObject("XZ_Plane019"), [""])
sketch20.MapMode = "FlatFace"
sketch20.AttachmentOffset = App.Placement(App.Vector(0, 0, -11.25 * 25.4), App.Rotation())
sketch20.addGeometry([
    Part.LineSegment(App.Vector(-591, 375, 0), App.Vector(-591, 286, 0)),
    Part.LineSegment(App.Vector(-591, 286, 0), App.Vector(591, 286, 0)),
    Part.LineSegment(App.Vector(591, 286, 0), App.Vector(591, 375, 0)),
    Part.LineSegment(App.Vector(591, 375, 0), App.Vector(-591, 375, 0)),
], False)
sketch20.addConstraint([
    Sketcher.Constraint("Coincident", 0, 2, 1, 1),
    Sketcher.Constraint("Coincident", 1, 2, 2, 1),
    Sketcher.Constraint("Coincident", 2, 2, 3, 1),
    Sketcher.Constraint("Coincident", 3, 2, 0, 1),
    Sketcher.Constraint("Vertical", 0),
    Sketcher.Constraint("Horizontal", 1),
    Sketcher.Constraint("Vertical", 2),
    Sketcher.Constraint("Horizontal", 3),
    Sketcher.Constraint("DistanceX", 1, 1, 1, 2, Q("46.5 in")),
    Sketcher.Constraint("DistanceY", 0, 2, 0, 1, Q("3.5 in")),
    Sketcher.Constraint("DistanceX", 0, 2, -1, 1, Q("23.25 in")),
    Sketcher.Constraint("DistanceY", -1, 1, 0, 2, Q("11.25 in")),
])
pad20 = body20.newObject("PartDesign::Pad", "Pad019")
pad20.Profile = sketch20
pad20.Length = Q("0.75 in")
pad20.Reversed = True

doc.recompute()
